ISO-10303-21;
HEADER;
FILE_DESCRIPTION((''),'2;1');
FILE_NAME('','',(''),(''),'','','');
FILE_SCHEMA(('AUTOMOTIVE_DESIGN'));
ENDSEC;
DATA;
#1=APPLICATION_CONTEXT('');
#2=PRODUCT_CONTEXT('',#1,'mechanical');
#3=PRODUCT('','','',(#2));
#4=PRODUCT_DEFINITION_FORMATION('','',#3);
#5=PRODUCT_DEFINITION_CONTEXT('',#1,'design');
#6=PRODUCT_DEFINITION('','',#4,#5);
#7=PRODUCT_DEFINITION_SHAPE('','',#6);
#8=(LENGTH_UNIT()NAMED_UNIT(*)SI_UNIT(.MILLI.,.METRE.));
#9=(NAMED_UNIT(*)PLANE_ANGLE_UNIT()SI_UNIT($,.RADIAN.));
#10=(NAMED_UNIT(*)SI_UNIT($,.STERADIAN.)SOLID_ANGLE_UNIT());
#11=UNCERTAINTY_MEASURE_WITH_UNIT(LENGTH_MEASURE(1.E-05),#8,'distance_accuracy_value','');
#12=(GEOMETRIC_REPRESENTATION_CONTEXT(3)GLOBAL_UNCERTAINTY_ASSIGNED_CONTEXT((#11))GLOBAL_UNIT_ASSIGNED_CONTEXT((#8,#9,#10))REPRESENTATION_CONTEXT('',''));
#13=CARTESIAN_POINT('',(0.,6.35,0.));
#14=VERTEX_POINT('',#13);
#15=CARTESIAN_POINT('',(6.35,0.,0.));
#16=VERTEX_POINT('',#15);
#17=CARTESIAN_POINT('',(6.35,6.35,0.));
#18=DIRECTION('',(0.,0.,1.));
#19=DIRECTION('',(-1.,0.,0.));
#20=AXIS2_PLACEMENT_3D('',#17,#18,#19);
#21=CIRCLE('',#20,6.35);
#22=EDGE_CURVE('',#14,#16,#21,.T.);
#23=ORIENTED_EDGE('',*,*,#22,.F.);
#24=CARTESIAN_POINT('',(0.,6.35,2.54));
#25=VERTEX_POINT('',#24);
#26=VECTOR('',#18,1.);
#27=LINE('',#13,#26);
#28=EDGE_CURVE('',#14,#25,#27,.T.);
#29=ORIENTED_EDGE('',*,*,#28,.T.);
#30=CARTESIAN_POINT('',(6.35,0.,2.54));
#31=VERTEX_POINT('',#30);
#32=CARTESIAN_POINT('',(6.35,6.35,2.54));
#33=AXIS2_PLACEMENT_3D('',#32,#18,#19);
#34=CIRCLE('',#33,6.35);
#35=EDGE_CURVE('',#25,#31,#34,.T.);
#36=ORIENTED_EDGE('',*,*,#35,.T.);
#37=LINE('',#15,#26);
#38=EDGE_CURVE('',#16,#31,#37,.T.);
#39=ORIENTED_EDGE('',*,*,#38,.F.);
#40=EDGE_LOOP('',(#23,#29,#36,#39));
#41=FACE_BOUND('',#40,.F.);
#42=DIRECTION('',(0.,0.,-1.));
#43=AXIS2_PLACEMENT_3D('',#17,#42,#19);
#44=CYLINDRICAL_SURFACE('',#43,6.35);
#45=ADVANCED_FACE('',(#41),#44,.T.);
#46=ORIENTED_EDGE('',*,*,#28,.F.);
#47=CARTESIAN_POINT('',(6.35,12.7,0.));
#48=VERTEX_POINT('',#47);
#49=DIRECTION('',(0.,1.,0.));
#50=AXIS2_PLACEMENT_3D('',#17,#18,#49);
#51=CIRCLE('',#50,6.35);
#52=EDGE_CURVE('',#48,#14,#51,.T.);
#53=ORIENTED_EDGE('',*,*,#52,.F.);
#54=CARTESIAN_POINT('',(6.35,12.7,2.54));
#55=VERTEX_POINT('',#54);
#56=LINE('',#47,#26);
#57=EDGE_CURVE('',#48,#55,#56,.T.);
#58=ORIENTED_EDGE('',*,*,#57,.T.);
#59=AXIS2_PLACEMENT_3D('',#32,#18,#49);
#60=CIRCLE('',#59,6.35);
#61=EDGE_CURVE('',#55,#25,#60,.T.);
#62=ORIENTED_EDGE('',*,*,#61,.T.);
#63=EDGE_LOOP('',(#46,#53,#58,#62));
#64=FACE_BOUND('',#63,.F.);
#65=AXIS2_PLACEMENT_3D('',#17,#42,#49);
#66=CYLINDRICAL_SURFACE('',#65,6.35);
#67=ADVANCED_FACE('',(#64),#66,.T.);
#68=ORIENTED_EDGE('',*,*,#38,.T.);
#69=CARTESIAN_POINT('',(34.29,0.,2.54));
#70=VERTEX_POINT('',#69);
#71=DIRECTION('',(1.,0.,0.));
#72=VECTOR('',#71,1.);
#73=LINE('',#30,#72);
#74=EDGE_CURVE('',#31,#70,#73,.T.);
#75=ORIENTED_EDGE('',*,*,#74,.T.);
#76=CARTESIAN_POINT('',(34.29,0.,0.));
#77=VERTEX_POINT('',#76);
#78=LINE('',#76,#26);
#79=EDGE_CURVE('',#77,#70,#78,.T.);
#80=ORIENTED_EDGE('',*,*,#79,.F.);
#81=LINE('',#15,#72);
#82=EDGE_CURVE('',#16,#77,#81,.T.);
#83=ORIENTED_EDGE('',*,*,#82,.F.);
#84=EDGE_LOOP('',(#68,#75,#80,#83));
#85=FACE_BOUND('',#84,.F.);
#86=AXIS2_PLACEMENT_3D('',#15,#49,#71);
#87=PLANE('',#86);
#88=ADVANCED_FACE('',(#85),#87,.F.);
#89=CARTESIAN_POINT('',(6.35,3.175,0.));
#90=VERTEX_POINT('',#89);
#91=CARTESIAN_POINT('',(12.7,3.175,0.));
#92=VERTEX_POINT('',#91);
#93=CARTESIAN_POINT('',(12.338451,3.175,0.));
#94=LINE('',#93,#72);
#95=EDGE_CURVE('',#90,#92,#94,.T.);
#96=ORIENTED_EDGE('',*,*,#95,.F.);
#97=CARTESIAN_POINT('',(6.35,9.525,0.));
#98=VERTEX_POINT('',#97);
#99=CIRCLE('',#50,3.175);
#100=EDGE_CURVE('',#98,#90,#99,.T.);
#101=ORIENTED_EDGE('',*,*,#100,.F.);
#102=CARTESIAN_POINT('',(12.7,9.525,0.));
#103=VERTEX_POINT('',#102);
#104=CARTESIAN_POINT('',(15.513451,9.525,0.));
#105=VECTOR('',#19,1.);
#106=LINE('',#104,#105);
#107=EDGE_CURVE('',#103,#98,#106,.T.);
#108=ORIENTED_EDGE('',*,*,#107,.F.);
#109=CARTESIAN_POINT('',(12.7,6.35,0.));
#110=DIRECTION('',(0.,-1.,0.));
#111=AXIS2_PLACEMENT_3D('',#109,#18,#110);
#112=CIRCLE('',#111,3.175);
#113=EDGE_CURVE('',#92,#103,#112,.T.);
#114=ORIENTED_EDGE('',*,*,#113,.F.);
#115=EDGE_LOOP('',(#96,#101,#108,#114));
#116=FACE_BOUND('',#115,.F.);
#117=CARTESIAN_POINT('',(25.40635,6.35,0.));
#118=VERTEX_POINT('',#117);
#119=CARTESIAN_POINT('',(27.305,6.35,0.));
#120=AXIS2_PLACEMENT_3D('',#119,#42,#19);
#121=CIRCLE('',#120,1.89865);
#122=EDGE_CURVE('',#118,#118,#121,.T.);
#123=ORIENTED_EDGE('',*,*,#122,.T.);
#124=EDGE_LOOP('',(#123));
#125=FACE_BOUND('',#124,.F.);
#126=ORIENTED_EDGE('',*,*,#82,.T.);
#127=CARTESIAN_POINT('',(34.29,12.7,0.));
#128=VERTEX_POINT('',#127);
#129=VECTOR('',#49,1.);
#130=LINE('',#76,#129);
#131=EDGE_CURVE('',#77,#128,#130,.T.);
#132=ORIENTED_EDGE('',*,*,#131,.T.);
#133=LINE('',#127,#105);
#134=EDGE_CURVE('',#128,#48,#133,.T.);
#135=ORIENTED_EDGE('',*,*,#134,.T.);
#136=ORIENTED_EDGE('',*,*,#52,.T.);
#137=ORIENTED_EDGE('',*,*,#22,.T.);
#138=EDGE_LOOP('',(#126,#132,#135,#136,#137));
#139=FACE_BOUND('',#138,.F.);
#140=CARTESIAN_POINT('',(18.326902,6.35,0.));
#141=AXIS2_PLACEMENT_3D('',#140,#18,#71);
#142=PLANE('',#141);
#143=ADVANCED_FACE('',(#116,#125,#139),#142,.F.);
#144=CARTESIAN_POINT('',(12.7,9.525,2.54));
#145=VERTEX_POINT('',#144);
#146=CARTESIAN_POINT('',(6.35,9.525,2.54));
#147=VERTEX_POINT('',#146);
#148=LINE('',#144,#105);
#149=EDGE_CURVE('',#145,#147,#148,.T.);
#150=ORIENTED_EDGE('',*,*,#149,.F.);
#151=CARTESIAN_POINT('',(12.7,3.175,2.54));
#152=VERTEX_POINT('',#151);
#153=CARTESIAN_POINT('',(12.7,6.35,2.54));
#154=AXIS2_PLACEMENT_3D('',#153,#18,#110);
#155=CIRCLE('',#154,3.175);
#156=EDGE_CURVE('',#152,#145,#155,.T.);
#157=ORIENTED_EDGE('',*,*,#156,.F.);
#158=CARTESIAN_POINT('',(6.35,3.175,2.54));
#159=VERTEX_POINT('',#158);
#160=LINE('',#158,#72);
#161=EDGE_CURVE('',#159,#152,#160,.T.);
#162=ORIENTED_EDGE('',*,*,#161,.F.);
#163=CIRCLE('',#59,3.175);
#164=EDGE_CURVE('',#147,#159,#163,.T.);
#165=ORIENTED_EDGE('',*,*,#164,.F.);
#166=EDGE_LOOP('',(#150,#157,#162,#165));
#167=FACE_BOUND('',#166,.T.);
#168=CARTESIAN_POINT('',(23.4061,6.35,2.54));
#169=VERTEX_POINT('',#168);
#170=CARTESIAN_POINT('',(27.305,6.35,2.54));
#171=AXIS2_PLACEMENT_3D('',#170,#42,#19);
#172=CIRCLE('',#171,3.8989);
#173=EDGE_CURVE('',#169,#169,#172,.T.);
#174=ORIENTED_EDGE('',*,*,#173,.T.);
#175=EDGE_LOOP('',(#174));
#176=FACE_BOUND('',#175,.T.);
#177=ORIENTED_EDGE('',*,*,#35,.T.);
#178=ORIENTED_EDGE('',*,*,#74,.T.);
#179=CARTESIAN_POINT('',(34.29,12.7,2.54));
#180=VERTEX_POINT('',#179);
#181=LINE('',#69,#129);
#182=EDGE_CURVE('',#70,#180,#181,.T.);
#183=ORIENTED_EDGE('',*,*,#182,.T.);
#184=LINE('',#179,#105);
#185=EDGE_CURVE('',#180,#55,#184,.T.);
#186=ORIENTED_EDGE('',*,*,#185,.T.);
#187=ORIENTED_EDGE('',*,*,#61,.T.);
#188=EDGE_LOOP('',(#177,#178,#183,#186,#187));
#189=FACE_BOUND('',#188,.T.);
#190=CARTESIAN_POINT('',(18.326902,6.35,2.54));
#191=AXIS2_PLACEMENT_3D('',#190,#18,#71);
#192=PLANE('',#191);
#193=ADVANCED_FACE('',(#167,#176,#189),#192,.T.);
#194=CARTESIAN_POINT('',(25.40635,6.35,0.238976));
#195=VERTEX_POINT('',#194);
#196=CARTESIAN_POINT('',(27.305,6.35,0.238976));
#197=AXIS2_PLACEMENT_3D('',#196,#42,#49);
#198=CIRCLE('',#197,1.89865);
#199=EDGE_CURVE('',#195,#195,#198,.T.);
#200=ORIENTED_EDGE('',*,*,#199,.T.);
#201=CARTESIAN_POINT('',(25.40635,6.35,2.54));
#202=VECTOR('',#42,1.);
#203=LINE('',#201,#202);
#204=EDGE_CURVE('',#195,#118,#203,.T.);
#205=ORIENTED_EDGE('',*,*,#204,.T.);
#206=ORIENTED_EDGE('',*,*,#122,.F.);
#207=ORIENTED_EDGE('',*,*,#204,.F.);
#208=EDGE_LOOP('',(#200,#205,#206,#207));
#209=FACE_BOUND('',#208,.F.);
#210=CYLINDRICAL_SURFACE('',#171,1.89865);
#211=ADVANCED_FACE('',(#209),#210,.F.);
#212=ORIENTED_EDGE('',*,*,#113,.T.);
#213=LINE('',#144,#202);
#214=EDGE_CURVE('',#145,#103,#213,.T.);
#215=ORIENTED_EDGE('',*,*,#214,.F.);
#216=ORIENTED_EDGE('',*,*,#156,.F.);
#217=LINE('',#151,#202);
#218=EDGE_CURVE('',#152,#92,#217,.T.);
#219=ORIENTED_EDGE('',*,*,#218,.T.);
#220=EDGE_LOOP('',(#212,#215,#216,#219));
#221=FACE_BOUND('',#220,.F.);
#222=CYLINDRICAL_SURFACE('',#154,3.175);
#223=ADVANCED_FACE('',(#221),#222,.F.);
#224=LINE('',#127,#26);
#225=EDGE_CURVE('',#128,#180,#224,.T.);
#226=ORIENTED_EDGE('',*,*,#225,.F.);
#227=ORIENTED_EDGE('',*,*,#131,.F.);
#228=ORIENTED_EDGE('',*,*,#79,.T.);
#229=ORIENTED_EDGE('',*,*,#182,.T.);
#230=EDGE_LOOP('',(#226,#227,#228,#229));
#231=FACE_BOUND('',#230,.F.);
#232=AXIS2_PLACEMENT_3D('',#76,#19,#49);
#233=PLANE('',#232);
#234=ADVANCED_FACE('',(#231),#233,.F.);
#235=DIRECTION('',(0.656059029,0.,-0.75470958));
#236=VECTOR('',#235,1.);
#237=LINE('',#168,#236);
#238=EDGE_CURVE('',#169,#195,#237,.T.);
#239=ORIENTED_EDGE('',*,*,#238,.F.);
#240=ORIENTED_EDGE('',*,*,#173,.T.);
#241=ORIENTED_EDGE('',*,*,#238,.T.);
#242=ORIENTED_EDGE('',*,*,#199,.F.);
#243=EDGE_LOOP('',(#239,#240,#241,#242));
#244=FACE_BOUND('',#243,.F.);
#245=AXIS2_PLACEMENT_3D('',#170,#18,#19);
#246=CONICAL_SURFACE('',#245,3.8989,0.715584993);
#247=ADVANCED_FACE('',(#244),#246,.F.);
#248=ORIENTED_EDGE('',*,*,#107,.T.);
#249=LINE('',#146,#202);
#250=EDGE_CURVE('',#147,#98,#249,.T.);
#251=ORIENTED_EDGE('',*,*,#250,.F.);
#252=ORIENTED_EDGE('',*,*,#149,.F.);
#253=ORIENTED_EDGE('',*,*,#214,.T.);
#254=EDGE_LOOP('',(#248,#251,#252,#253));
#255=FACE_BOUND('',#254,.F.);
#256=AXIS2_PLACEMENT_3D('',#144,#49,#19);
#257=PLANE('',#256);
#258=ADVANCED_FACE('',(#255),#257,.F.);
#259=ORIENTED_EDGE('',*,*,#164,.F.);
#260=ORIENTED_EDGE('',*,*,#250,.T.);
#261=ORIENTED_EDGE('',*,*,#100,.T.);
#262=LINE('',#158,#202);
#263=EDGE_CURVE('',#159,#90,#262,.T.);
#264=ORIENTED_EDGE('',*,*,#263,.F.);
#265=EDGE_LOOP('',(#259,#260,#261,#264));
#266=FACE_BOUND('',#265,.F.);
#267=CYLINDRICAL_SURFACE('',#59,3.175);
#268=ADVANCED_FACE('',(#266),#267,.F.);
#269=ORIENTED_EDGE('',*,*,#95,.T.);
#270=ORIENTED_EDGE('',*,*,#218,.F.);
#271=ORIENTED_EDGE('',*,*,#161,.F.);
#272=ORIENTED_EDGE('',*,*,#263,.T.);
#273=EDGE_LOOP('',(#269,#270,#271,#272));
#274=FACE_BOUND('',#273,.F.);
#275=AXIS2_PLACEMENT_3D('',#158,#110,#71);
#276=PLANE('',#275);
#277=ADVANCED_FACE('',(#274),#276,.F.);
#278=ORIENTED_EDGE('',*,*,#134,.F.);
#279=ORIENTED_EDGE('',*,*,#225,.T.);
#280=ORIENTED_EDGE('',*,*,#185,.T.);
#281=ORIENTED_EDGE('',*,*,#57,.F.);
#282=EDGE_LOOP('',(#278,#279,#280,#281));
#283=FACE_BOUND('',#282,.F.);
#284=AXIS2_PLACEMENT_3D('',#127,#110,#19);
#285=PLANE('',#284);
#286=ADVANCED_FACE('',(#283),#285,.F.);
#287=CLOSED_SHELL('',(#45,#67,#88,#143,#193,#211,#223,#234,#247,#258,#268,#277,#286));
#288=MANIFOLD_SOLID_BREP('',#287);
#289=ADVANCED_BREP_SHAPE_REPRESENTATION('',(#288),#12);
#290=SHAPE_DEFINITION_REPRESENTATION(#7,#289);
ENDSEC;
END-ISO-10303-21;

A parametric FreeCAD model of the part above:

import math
import FreeCAD as App
import Part
import Sketcher
from FreeCAD import Vector
Q = App.Units.Quantity

doc = App.newDocument("Part")
body = doc.addObject("PartDesign::Body", "Body")

# Sketch on XY plane
sketch1 = body.newObject("Sketcher::SketchObject", "Sketch")
sketch1.AttachmentSupport = (doc.getObject("XY_Plane"), [""])
sketch1.MapMode = "FlatFace"
sketch1.addGeometry([
    Part.ArcOfCircle(Part.Circle(Vector(6.35, 6.35, 0), Vector(0, 0, 1), 6.35), math.radians(180), math.radians(270)),  # 0
    Part.LineSegment(Vector(6.35, 0, 0), Vector(34.29, 0, 0)),  # 1
    Part.LineSegment(Vector(34.29, 0, 0), Vector(34.29, 12.7, 0)),  # 2
    Part.LineSegment(Vector(34.29, 12.7, 0), Vector(6.35, 12.7, 0)),  # 3
    Part.ArcOfCircle(Part.Circle(Vector(6.35, 6.35, 0), Vector(0, 0, 1), 6.35), math.radians(90), math.radians(180)),  # 4
], False)
sketch1.addConstraint([
    Sketcher.Constraint("Tangent", 0, 2, 1, 1),
    Sketcher.Constraint("Coincident", 1, 2, 2, 1),
    Sketcher.Constraint("Coincident", 2, 2, 3, 1),
    Sketcher.Constraint("Tangent", 3, 2, 4, 1),
    Sketcher.Constraint("Tangent", 4, 2, 0, 1),
    Sketcher.Constraint("Horizontal", 1),
    Sketcher.Constraint("Vertical", 2),
    Sketcher.Constraint("Horizontal", 3),
    Sketcher.Constraint("Equal", 0, 4),
    Sketcher.Constraint("PointOnObject", 0, 2, -1),
    Sketcher.Constraint("PointOnObject", 4, 2, -2),
    Sketcher.Constraint("Horizontal", 0, 3, 4, 2),
    Sketcher.Constraint("Radius", 0, Q("0.25 in")),
    Sketcher.Constraint("DistanceX", 1, 1, 1, 2, Q("1.1 in")),
])
pad1 = body.newObject("PartDesign::Pad", "Pad")
pad1.Profile = sketch1
pad1.Length = Q("0.1 in")

# Sketch on XY plane
sketch2 = body.newObject("Sketcher::SketchObject", "Sketch001")
sketch2.AttachmentSupport = (doc.getObject("XY_Plane"), [""])
sketch2.MapMode = "FlatFace"
sketch2.AttachmentOffset = App.Placement(Vector(0, 0, 0.1 * 25.4), App.Rotation())
sketch2.addGeometry([
    Part.LineSegment(Vector(12.7, 9.525, 0), Vector(6.35, 9.525, 0)),
    Part.ArcOfCircle(Part.Circle(Vector(6.35, 6.35, 0), Vector(0, 0, 1), 3.175), math.radians(90), math.radians(270)),
    Part.LineSegment(Vector(6.35, 3.175, 0), Vector(12.7, 3.175, 0)),
    Part.ArcOfCircle(Part.Circle(Vector(12.7, 6.35, 0), Vector(0, 0, 1), 3.175), math.radians(-90), math.radians(90)),
], False)
sketch2.addConstraint([
    Sketcher.Constraint("Tangent", 0, 2, 1, 1),
    Sketcher.Constraint("Tangent", 1, 2, 2, 1),
    Sketcher.Constraint("Tangent", 2, 2, 3, 1),
    Sketcher.Constraint("Tangent", 3, 2, 0, 1),
    Sketcher.Constraint("Horizontal", 0),
    Sketcher.Constraint("Horizontal", 2),
    Sketcher.Constraint("Radius", 1, Q("0.125 in")),
    Sketcher.Constraint("DistanceX", 0, 2, 0, 1, Q("0.25 in")),
    Sketcher.Constraint("DistanceX", -1, 1, 3, 3, Q("0.5 in")),
    Sketcher.Constraint("DistanceY", -1, 1, 1, 3, Q("0.25 in")),
])
pocket1 = body.newObject("PartDesign::Pocket", "Pocket")
pocket1.Profile = sketch2
pocket1.Type = "ThroughAll"

# Sketch on XY plane
sketch3 = body.newObject("Sketcher::SketchObject", "Sketch002")
sketch3.AttachmentSupport = (doc.getObject("XY_Plane"), [""])
sketch3.MapMode = "FlatFace"
sketch3.AttachmentOffset = App.Placement(Vector(0, 0, 0.1 * 25.4), App.Rotation())
sketch3.addGeometry(Part.Circle(Vector(27.305, 6.35, 0), Vector(0, 0, 1), 1.89865), False)
sketch3.addConstraint([
    Sketcher.Constraint("Diameter", 0, Q("0.1495 in")),
    Sketcher.Constraint("DistanceY", -1, 1, 0, 3, Q("0.25 in")),
    Sketcher.Constraint("DistanceX", -1, 1, 0, 3, Q("1.075 in")),
])
doc.recompute()
hole = body.newObject("PartDesign::Hole", "Hole")
hole.Profile = sketch3
hole.ThreadType = "None"
hole.Diameter = Q("0.1495 in")
hole.DepthType = "ThroughAll"
hole.HoleCutType = "Countersink"
hole.HoleCutDiameter = Q("0.307 in")
hole.HoleCutCountersinkAngle = 82

doc.recompute()
